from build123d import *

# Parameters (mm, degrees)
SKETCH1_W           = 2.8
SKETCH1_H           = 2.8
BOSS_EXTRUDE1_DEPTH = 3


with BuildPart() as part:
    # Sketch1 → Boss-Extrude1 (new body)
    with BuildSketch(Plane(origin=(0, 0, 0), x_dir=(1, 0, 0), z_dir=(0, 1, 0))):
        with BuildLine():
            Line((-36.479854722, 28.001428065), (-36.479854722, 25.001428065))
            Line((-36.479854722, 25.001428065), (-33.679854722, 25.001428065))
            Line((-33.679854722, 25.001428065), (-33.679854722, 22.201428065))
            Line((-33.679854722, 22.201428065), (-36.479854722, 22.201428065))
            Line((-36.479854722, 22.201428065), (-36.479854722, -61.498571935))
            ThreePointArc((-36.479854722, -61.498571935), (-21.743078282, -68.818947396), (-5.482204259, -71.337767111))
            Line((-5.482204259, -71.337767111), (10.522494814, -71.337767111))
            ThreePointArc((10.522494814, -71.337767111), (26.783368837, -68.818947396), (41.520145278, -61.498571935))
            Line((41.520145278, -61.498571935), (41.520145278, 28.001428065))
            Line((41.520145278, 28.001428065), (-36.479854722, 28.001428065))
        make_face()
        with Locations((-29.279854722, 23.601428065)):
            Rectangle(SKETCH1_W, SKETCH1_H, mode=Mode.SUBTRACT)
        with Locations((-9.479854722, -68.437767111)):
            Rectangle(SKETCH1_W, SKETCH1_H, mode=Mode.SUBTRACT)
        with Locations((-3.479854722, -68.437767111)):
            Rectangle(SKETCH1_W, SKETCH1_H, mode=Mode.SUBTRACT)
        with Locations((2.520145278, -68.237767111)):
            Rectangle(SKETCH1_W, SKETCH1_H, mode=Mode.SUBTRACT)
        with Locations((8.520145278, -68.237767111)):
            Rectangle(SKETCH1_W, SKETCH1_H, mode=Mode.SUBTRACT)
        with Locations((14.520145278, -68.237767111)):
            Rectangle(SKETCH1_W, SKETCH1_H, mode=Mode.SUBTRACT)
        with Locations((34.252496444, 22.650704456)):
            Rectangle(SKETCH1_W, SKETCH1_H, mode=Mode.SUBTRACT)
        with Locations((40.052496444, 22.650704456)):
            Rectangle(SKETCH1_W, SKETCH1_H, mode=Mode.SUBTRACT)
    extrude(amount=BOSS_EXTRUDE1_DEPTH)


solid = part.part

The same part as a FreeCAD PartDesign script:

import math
import FreeCAD as App
import Part
import Sketcher
Q = App.Units.Quantity

doc = App.newDocument("Part")
body = doc.addObject("PartDesign::Body", "Body")

# Sketch on XZ plane
sketch1 = doc.addObject("Sketcher::SketchObject", "Sketch")
body.addObject(sketch1)
sketch1.AttachmentSupport = (doc.XZ_Plane, [""])
sketch1.MapMode = "FlatFace"
sketch1.addGeometry(Part.LineSegment(App.Vector(-36.5, -28, 0), App.Vector(-36.5, -25, 0)), False)
sketch1.addGeometry(Part.LineSegment(App.Vector(-36.5, -25, 0), App.Vector(-33.7, -25, 0)), False)
sketch1.addGeometry(Part.LineSegment(App.Vector(-33.7, -25, 0), App.Vector(-33.7, -22.2, 0)), False)
sketch1.addGeometry(Part.LineSegment(App.Vector(-33.7, -22.2, 0), App.Vector(-36.5, -22.2, 0)), False)
sketch1.addGeometry(Part.LineSegment(App.Vector(-36.5, -22.2, 0), App.Vector(-36.5, 61.5, 0)), False)
sketch1.addGeometry(Part.ArcOfCircle(Part.Circle(App.Vector(-5.5, 17.6, 0), App.Vector(0, 0, 1), 53.7), math.radians(90), math.radians(125)), False)
sketch1.addGeometry(Part.LineSegment(App.Vector(-5.5, 71.3, 0), App.Vector(10.5, 71.3, 0)), False)
sketch1.addGeometry(Part.ArcOfCircle(Part.Circle(App.Vector(10.5, 17.6, 0), App.Vector(0, 0, 1), 53.7), math.radians(55), math.radians(90)), False)
sketch1.addGeometry(Part.LineSegment(App.Vector(41.5, 61.5, 0), App.Vector(41.5, -28, 0)), False)
sketch1.addGeometry(Part.LineSegment(App.Vector(41.5, -28, 0), App.Vector(-36.5, -28, 0)), False)
sketch1.addGeometry(Part.LineSegment(App.Vector(-8.1, 69.8, 0), App.Vector(-10.9, 69.8, 0)), False)
sketch1.addGeometry(Part.LineSegment(App.Vector(-10.9, 69.8, 0), App.Vector(-10.9, 67, 0)), False)
sketch1.addGeometry(Part.LineSegment(App.Vector(-10.9, 67, 0), App.Vector(-8.1, 67, 0)), False)
sketch1.addGeometry(Part.LineSegment(App.Vector(-8.1, 67, 0), App.Vector(-8.1, 69.8, 0)), False)
sketch1.addGeometry(Part.LineSegment(App.Vector(-2.1, 69.8, 0), App.Vector(-4.9, 69.8, 0)), False)
sketch1.addGeometry(Part.LineSegment(App.Vector(-4.9, 69.8, 0), App.Vector(-4.9, 67, 0)), False)
sketch1.addGeometry(Part.LineSegment(App.Vector(-4.9, 67, 0), App.Vector(-2.1, 67, 0)), False)
sketch1.addGeometry(Part.LineSegment(App.Vector(-2.1, 67, 0), App.Vector(-2.1, 69.8, 0)), False)
sketch1.addGeometry(Part.LineSegment(App.Vector(3.9, 69.6, 0), App.Vector(1.1, 69.6, 0)), False)
sketch1.addGeometry(Part.LineSegment(App.Vector(1.1, 69.6, 0), App.Vector(1.1, 66.8, 0)), False)
sketch1.addGeometry(Part.LineSegment(App.Vector(1.1, 66.8, 0), App.Vector(3.9, 66.8, 0)), False)
sketch1.addGeometry(Part.LineSegment(App.Vector(3.9, 66.8, 0), App.Vector(3.9, 69.6, 0)), False)
sketch1.addGeometry(Part.LineSegment(App.Vector(9.9, 69.6, 0), App.Vector(7.1, 69.6, 0)), False)
sketch1.addGeometry(Part.LineSegment(App.Vector(7.1, 69.6, 0), App.Vector(7.1, 66.8, 0)), False)
sketch1.addGeometry(Part.LineSegment(App.Vector(7.1, 66.8, 0), App.Vector(9.9, 66.8, 0)), False)
sketch1.addGeometry(Part.LineSegment(App.Vector(9.9, 66.8, 0), App.Vector(9.9, 69.6, 0)), False)
sketch1.addGeometry(Part.LineSegment(App.Vector(15.9, 69.6, 0), App.Vector(13.1, 69.6, 0)), False)
sketch1.addGeometry(Part.LineSegment(App.Vector(13.1, 69.6, 0), App.Vector(13.1, 66.8, 0)), False)
sketch1.addGeometry(Part.LineSegment(App.Vector(13.1, 66.8, 0), App.Vector(15.9, 66.8, 0)), False)
sketch1.addGeometry(Part.LineSegment(App.Vector(15.9, 66.8, 0), App.Vector(15.9, 69.6, 0)), False)
sketch1.addGeometry(Part.LineSegment(App.Vector(-27.9, -22.2, 0), App.Vector(-30.7, -22.2, 0)), False)
sketch1.addGeometry(Part.LineSegment(App.Vector(-30.7, -22.2, 0), App.Vector(-30.7, -25, 0)), False)
sketch1.addGeometry(Part.LineSegment(App.Vector(-30.7, -25, 0), App.Vector(-27.9, -25, 0)), False)
sketch1.addGeometry(Part.LineSegment(App.Vector(-27.9, -25, 0), App.Vector(-27.9, -22.2, 0)), False)
sketch1.addGeometry(Part.LineSegment(App.Vector(35.7, -21.3, 0), App.Vector(32.9, -21.3, 0)), False)
sketch1.addGeometry(Part.LineSegment(App.Vector(32.9, -21.3, 0), App.Vector(32.9, -24.1, 0)), False)
sketch1.addGeometry(Part.LineSegment(App.Vector(32.9, -24.1, 0), App.Vector(35.7, -24.1, 0)), False)
sketch1.addGeometry(Part.LineSegment(App.Vector(35.7, -24.1, 0), App.Vector(35.7, -21.3, 0)), False)
sketch1.addGeometry(Part.LineSegment(App.Vector(41.5, -21.3, 0), App.Vector(38.7, -21.3, 0)), False)
sketch1.addGeometry(Part.LineSegment(App.Vector(38.7, -21.3, 0), App.Vector(38.7, -24.1, 0)), False)
sketch1.addGeometry(Part.LineSegment(App.Vector(38.7, -24.1, 0), App.Vector(41.5, -24.1, 0)), False)
sketch1.addGeometry(Part.LineSegment(App.Vector(41.5, -24.1, 0), App.Vector(41.5, -21.3, 0)), False)
sketch1.addConstraint(Sketcher.Constraint("Coincident", 0, 2, 1, 1))
sketch1.addConstraint(Sketcher.Constraint("Coincident", 1, 2, 2, 1))
sketch1.addConstraint(Sketcher.Constraint("Coincident", 2, 2, 3, 1))
sketch1.addConstraint(Sketcher.Constraint("Coincident", 3, 2, 4, 1))
sketch1.addConstraint(Sketcher.Constraint("Coincident", 4, 2, 5, 2))
sketch1.addConstraint(Sketcher.Constraint("Tangent", 5, 1, 6, 1))
sketch1.addConstraint(Sketcher.Constraint("Tangent", 6, 2, 7, 2))
sketch1.addConstraint(Sketcher.Constraint("Coincident", 7, 1, 8, 1))
sketch1.addConstraint(Sketcher.Constraint("Coincident", 8, 2, 9, 1))
sketch1.addConstraint(Sketcher.Constraint("Coincident", 9, 2, 0, 1))
sketch1.addConstraint(Sketcher.Constraint("Coincident", 10, 2, 11, 1))
sketch1.addConstraint(Sketcher.Constraint("Coincident", 11, 2, 12, 1))
sketch1.addConstraint(Sketcher.Constraint("Coincident", 12, 2, 13, 1))
sketch1.addConstraint(Sketcher.Constraint("Coincident", 13, 2, 10, 1))
sketch1.addConstraint(Sketcher.Constraint("Coincident", 14, 2, 15, 1))
sketch1.addConstraint(Sketcher.Constraint("Coincident", 15, 2, 16, 1))
sketch1.addConstraint(Sketcher.Constraint("Coincident", 16, 2, 17, 1))
sketch1.addConstraint(Sketcher.Constraint("Coincident", 17, 2, 14, 1))
sketch1.addConstraint(Sketcher.Constraint("Coincident", 18, 2, 19, 1))
sketch1.addConstraint(Sketcher.Constraint("Coincident", 19, 2, 20, 1))
sketch1.addConstraint(Sketcher.Constraint("Coincident", 20, 2, 21, 1))
sketch1.addConstraint(Sketcher.Constraint("Coincident", 21, 2, 18, 1))
sketch1.addConstraint(Sketcher.Constraint("Coincident", 22, 2, 23, 1))
sketch1.addConstraint(Sketcher.Constraint("Coincident", 23, 2, 24, 1))
sketch1.addConstraint(Sketcher.Constraint("Coincident", 24, 2, 25, 1))
sketch1.addConstraint(Sketcher.Constraint("Coincident", 25, 2, 22, 1))
sketch1.addConstraint(Sketcher.Constraint("Coincident", 26, 2, 27, 1))
sketch1.addConstraint(Sketcher.Constraint("Coincident", 27, 2, 28, 1))
sketch1.addConstraint(Sketcher.Constraint("Coincident", 28, 2, 29, 1))
sketch1.addConstraint(Sketcher.Constraint("Coincident", 29, 2, 26, 1))
sketch1.addConstraint(Sketcher.Constraint("Coincident", 30, 2, 31, 1))
sketch1.addConstraint(Sketcher.Constraint("Coincident", 31, 2, 32, 1))
sketch1.addConstraint(Sketcher.Constraint("Coincident", 32, 2, 33, 1))
sketch1.addConstraint(Sketcher.Constraint("Coincident", 33, 2, 30, 1))
sketch1.addConstraint(Sketcher.Constraint("Coincident", 34, 2, 35, 1))
sketch1.addConstraint(Sketcher.Constraint("Coincident", 35, 2, 36, 1))
sketch1.addConstraint(Sketcher.Constraint("Coincident", 36, 2, 37, 1))
sketch1.addConstraint(Sketcher.Constraint("Coincident", 37, 2, 34, 1))
sketch1.addConstraint(Sketcher.Constraint("Coincident", 38, 2, 39, 1))
sketch1.addConstraint(Sketcher.Constraint("Coincident", 39, 2, 40, 1))
sketch1.addConstraint(Sketcher.Constraint("Coincident", 40, 2, 41, 1))
sketch1.addConstraint(Sketcher.Constraint("Coincident", 41, 2, 38, 1))
sketch1.addConstraint(Sketcher.Constraint("Vertical", 0))
sketch1.addConstraint(Sketcher.Constraint("Horizontal", 1))
sketch1.addConstraint(Sketcher.Constraint("Vertical", 2))
sketch1.addConstraint(Sketcher.Constraint("Horizontal", 3))
sketch1.addConstraint(Sketcher.Constraint("Vertical", 4))
sketch1.addConstraint(Sketcher.Constraint("Horizontal", 6))
sketch1.addConstraint(Sketcher.Constraint("Vertical", 8))
sketch1.addConstraint(Sketcher.Constraint("Horizontal", 9))
sketch1.addConstraint(Sketcher.Constraint("Horizontal", 10))
sketch1.addConstraint(Sketcher.Constraint("Vertical", 11))
sketch1.addConstraint(Sketcher.Constraint("Horizontal", 12))
sketch1.addConstraint(Sketcher.Constraint("Vertical", 13))
sketch1.addConstraint(Sketcher.Constraint("Horizontal", 14))
sketch1.addConstraint(Sketcher.Constraint("Vertical", 15))
sketch1.addConstraint(Sketcher.Constraint("Horizontal", 16))
sketch1.addConstraint(Sketcher.Constraint("Vertical", 17))
sketch1.addConstraint(Sketcher.Constraint("Horizontal", 18))
sketch1.addConstraint(Sketcher.Constraint("Vertical", 19))
sketch1.addConstraint(Sketcher.Constraint("Horizontal", 20))
sketch1.addConstraint(Sketcher.Constraint("Vertical", 21))
sketch1.addConstraint(Sketcher.Constraint("Horizontal", 22))
sketch1.addConstraint(Sketcher.Constraint("Vertical", 23))
sketch1.addConstraint(Sketcher.Constraint("Horizontal", 24))
sketch1.addConstraint(Sketcher.Constraint("Vertical", 25))
sketch1.addConstraint(Sketcher.Constraint("Horizontal", 26))
sketch1.addConstraint(Sketcher.Constraint("Vertical", 27))
sketch1.addConstraint(Sketcher.Constraint("Horizontal", 28))
sketch1.addConstraint(Sketcher.Constraint("Vertical", 29))
sketch1.addConstraint(Sketcher.Constraint("Horizontal", 30))
sketch1.addConstraint(Sketcher.Constraint("Vertical", 31))
sketch1.addConstraint(Sketcher.Constraint("Horizontal", 32))
sketch1.addConstraint(Sketcher.Constraint("Vertical", 33))
sketch1.addConstraint(Sketcher.Constraint("Horizontal", 34))
sketch1.addConstraint(Sketcher.Constraint("Vertical", 35))
sketch1.addConstraint(Sketcher.Constraint("Horizontal", 36))
sketch1.addConstraint(Sketcher.Constraint("Vertical", 37))
sketch1.addConstraint(Sketcher.Constraint("Horizontal", 38))
sketch1.addConstraint(Sketcher.Constraint("Vertical", 39))
sketch1.addConstraint(Sketcher.Constraint("Horizontal", 40))
sketch1.addConstraint(Sketcher.Constraint("Vertical", 41))
sketch1.addConstraint(Sketcher.Constraint("Equal", 5, 7))
sketch1.addConstraint(Sketcher.Constraint("Horizontal", 4, 2, 7, 1))
sketch1.addConstraint(Sketcher.Constraint("Horizontal", 13, 2, 14, 2))
sketch1.addConstraint(Sketcher.Constraint("Horizontal", 12, 2, 15, 2))
sketch1.addConstraint(Sketcher.Constraint("Horizontal", 21, 2, 22, 2))
sketch1.addConstraint(Sketcher.Constraint("Horizontal", 20, 2, 23, 2))
sketch1.addConstraint(Sketcher.Constraint("Horizontal", 25, 2, 26, 2))
sketch1.addConstraint(Sketcher.Constraint("Horizontal", 24, 2, 27, 2))
sketch1.addConstraint(Sketcher.Constraint("Horizontal", 3, 2, 30, 2))
sketch1.addConstraint(Sketcher.Constraint("Horizontal", 1, 2, 31, 2))
sketch1.addConstraint(Sketcher.Constraint("Horizontal", 37, 2, 38, 2))
sketch1.addConstraint(Sketcher.Constraint("Horizontal", 36, 2, 39, 2))
sketch1.addConstraint(Sketcher.Constraint("Vertical", 0, 2, 3, 2))
sketch1.addConstraint(Sketcher.Constraint("Equal", 3, 10))
sketch1.addConstraint(Sketcher.Constraint("Equal", 12, 14))
sketch1.addConstraint(Sketcher.Constraint("Equal", 16, 18))
sketch1.addConstraint(Sketcher.Constraint("Equal", 20, 22))
sketch1.addConstraint(Sketcher.Constraint("Equal", 24, 26))
sketch1.addConstraint(Sketcher.Constraint("Equal", 28, 30))
sketch1.addConstraint(Sketcher.Constraint("Equal", 32, 34))
sketch1.addConstraint(Sketcher.Constraint("Equal", 36, 38))
sketch1.addConstraint(Sketcher.Constraint("Equal", 40, 2))
sketch1.addConstraint(Sketcher.Constraint("Equal", 2, 11))
sketch1.addConstraint(Sketcher.Constraint("Equal", 17, 19))
sketch1.addConstraint(Sketcher.Constraint("Equal", 33, 35))
sketch1.addConstraint(Sketcher.Constraint("DistanceX", 9, 2, 9, 1, Q("78 mm")))
sketch1.addConstraint(Sketcher.Constraint("DistanceY", 0, 1, 0, 2, Q("3 mm")))
sketch1.addConstraint(Sketcher.Constraint("DistanceX", 1, 1, 1, 2, Q("2.8 mm")))
sketch1.addConstraint(Sketcher.Constraint("DistanceY", 4, 1, 4, 2, Q("83.7 mm")))
sketch1.addConstraint(Sketcher.Constraint("DistanceX", 10, 2, 14, 2, Q("6 mm")))
sketch1.addConstraint(Sketcher.Constraint("DistanceX", 14, 2, 18, 2, Q("6 mm")))
sketch1.addConstraint(Sketcher.Constraint("DistanceY", 19, 2, 17, 2, Q("3 mm")))
sketch1.addConstraint(Sketcher.Constraint("DistanceX", 18, 2, 22, 2, Q("6 mm")))
sketch1.addConstraint(Sketcher.Constraint("DistanceX", 22, 2, 26, 2, Q("6 mm")))
sketch1.addConstraint(Sketcher.Constraint("DistanceX", 2, 2, 30, 2, Q("3 mm")))
sketch1.addConstraint(Sketcher.Constraint("DistanceX", 37, 2, 38, 2, Q("3 mm")))
sketch1.addConstraint(Sketcher.Constraint("DistanceY", 10, 2, 5, 1, Q("1.5 mm")))
sketch1.addConstraint(Sketcher.Constraint("DistanceX", 4, 2, 10, 2, Q("25.6 mm")))
sketch1.addConstraint(Sketcher.Constraint("Radius", 5, Q("53.74749 mm")))
sketch1.addConstraint(Sketcher.Constraint("DistanceX", 7, 3, 34, 2, Q("22.330002 mm")))
sketch1.addConstraint(Sketcher.Constraint("DistanceX", 6, 1, 6, 2, Q("16.004699 mm")))
sketch1.addConstraint(Sketcher.Constraint("DistanceY", 0, 2, -1, 1, Q("25.001428 mm")))
sketch1.addConstraint(Sketcher.Constraint("DistanceY", 34, 2, 7, 3, Q("38.840981 mm")))
sketch1.addConstraint(Sketcher.Constraint("DistanceX", 5, 3, -1, 1, Q("5.482204 mm")))
pad1 = doc.addObject("PartDesign::Pad", "Pad")
body.addObject(pad1)
pad1.Profile = sketch1
pad1.Length = 3
pad1.Reversed = True

doc.recompute()
